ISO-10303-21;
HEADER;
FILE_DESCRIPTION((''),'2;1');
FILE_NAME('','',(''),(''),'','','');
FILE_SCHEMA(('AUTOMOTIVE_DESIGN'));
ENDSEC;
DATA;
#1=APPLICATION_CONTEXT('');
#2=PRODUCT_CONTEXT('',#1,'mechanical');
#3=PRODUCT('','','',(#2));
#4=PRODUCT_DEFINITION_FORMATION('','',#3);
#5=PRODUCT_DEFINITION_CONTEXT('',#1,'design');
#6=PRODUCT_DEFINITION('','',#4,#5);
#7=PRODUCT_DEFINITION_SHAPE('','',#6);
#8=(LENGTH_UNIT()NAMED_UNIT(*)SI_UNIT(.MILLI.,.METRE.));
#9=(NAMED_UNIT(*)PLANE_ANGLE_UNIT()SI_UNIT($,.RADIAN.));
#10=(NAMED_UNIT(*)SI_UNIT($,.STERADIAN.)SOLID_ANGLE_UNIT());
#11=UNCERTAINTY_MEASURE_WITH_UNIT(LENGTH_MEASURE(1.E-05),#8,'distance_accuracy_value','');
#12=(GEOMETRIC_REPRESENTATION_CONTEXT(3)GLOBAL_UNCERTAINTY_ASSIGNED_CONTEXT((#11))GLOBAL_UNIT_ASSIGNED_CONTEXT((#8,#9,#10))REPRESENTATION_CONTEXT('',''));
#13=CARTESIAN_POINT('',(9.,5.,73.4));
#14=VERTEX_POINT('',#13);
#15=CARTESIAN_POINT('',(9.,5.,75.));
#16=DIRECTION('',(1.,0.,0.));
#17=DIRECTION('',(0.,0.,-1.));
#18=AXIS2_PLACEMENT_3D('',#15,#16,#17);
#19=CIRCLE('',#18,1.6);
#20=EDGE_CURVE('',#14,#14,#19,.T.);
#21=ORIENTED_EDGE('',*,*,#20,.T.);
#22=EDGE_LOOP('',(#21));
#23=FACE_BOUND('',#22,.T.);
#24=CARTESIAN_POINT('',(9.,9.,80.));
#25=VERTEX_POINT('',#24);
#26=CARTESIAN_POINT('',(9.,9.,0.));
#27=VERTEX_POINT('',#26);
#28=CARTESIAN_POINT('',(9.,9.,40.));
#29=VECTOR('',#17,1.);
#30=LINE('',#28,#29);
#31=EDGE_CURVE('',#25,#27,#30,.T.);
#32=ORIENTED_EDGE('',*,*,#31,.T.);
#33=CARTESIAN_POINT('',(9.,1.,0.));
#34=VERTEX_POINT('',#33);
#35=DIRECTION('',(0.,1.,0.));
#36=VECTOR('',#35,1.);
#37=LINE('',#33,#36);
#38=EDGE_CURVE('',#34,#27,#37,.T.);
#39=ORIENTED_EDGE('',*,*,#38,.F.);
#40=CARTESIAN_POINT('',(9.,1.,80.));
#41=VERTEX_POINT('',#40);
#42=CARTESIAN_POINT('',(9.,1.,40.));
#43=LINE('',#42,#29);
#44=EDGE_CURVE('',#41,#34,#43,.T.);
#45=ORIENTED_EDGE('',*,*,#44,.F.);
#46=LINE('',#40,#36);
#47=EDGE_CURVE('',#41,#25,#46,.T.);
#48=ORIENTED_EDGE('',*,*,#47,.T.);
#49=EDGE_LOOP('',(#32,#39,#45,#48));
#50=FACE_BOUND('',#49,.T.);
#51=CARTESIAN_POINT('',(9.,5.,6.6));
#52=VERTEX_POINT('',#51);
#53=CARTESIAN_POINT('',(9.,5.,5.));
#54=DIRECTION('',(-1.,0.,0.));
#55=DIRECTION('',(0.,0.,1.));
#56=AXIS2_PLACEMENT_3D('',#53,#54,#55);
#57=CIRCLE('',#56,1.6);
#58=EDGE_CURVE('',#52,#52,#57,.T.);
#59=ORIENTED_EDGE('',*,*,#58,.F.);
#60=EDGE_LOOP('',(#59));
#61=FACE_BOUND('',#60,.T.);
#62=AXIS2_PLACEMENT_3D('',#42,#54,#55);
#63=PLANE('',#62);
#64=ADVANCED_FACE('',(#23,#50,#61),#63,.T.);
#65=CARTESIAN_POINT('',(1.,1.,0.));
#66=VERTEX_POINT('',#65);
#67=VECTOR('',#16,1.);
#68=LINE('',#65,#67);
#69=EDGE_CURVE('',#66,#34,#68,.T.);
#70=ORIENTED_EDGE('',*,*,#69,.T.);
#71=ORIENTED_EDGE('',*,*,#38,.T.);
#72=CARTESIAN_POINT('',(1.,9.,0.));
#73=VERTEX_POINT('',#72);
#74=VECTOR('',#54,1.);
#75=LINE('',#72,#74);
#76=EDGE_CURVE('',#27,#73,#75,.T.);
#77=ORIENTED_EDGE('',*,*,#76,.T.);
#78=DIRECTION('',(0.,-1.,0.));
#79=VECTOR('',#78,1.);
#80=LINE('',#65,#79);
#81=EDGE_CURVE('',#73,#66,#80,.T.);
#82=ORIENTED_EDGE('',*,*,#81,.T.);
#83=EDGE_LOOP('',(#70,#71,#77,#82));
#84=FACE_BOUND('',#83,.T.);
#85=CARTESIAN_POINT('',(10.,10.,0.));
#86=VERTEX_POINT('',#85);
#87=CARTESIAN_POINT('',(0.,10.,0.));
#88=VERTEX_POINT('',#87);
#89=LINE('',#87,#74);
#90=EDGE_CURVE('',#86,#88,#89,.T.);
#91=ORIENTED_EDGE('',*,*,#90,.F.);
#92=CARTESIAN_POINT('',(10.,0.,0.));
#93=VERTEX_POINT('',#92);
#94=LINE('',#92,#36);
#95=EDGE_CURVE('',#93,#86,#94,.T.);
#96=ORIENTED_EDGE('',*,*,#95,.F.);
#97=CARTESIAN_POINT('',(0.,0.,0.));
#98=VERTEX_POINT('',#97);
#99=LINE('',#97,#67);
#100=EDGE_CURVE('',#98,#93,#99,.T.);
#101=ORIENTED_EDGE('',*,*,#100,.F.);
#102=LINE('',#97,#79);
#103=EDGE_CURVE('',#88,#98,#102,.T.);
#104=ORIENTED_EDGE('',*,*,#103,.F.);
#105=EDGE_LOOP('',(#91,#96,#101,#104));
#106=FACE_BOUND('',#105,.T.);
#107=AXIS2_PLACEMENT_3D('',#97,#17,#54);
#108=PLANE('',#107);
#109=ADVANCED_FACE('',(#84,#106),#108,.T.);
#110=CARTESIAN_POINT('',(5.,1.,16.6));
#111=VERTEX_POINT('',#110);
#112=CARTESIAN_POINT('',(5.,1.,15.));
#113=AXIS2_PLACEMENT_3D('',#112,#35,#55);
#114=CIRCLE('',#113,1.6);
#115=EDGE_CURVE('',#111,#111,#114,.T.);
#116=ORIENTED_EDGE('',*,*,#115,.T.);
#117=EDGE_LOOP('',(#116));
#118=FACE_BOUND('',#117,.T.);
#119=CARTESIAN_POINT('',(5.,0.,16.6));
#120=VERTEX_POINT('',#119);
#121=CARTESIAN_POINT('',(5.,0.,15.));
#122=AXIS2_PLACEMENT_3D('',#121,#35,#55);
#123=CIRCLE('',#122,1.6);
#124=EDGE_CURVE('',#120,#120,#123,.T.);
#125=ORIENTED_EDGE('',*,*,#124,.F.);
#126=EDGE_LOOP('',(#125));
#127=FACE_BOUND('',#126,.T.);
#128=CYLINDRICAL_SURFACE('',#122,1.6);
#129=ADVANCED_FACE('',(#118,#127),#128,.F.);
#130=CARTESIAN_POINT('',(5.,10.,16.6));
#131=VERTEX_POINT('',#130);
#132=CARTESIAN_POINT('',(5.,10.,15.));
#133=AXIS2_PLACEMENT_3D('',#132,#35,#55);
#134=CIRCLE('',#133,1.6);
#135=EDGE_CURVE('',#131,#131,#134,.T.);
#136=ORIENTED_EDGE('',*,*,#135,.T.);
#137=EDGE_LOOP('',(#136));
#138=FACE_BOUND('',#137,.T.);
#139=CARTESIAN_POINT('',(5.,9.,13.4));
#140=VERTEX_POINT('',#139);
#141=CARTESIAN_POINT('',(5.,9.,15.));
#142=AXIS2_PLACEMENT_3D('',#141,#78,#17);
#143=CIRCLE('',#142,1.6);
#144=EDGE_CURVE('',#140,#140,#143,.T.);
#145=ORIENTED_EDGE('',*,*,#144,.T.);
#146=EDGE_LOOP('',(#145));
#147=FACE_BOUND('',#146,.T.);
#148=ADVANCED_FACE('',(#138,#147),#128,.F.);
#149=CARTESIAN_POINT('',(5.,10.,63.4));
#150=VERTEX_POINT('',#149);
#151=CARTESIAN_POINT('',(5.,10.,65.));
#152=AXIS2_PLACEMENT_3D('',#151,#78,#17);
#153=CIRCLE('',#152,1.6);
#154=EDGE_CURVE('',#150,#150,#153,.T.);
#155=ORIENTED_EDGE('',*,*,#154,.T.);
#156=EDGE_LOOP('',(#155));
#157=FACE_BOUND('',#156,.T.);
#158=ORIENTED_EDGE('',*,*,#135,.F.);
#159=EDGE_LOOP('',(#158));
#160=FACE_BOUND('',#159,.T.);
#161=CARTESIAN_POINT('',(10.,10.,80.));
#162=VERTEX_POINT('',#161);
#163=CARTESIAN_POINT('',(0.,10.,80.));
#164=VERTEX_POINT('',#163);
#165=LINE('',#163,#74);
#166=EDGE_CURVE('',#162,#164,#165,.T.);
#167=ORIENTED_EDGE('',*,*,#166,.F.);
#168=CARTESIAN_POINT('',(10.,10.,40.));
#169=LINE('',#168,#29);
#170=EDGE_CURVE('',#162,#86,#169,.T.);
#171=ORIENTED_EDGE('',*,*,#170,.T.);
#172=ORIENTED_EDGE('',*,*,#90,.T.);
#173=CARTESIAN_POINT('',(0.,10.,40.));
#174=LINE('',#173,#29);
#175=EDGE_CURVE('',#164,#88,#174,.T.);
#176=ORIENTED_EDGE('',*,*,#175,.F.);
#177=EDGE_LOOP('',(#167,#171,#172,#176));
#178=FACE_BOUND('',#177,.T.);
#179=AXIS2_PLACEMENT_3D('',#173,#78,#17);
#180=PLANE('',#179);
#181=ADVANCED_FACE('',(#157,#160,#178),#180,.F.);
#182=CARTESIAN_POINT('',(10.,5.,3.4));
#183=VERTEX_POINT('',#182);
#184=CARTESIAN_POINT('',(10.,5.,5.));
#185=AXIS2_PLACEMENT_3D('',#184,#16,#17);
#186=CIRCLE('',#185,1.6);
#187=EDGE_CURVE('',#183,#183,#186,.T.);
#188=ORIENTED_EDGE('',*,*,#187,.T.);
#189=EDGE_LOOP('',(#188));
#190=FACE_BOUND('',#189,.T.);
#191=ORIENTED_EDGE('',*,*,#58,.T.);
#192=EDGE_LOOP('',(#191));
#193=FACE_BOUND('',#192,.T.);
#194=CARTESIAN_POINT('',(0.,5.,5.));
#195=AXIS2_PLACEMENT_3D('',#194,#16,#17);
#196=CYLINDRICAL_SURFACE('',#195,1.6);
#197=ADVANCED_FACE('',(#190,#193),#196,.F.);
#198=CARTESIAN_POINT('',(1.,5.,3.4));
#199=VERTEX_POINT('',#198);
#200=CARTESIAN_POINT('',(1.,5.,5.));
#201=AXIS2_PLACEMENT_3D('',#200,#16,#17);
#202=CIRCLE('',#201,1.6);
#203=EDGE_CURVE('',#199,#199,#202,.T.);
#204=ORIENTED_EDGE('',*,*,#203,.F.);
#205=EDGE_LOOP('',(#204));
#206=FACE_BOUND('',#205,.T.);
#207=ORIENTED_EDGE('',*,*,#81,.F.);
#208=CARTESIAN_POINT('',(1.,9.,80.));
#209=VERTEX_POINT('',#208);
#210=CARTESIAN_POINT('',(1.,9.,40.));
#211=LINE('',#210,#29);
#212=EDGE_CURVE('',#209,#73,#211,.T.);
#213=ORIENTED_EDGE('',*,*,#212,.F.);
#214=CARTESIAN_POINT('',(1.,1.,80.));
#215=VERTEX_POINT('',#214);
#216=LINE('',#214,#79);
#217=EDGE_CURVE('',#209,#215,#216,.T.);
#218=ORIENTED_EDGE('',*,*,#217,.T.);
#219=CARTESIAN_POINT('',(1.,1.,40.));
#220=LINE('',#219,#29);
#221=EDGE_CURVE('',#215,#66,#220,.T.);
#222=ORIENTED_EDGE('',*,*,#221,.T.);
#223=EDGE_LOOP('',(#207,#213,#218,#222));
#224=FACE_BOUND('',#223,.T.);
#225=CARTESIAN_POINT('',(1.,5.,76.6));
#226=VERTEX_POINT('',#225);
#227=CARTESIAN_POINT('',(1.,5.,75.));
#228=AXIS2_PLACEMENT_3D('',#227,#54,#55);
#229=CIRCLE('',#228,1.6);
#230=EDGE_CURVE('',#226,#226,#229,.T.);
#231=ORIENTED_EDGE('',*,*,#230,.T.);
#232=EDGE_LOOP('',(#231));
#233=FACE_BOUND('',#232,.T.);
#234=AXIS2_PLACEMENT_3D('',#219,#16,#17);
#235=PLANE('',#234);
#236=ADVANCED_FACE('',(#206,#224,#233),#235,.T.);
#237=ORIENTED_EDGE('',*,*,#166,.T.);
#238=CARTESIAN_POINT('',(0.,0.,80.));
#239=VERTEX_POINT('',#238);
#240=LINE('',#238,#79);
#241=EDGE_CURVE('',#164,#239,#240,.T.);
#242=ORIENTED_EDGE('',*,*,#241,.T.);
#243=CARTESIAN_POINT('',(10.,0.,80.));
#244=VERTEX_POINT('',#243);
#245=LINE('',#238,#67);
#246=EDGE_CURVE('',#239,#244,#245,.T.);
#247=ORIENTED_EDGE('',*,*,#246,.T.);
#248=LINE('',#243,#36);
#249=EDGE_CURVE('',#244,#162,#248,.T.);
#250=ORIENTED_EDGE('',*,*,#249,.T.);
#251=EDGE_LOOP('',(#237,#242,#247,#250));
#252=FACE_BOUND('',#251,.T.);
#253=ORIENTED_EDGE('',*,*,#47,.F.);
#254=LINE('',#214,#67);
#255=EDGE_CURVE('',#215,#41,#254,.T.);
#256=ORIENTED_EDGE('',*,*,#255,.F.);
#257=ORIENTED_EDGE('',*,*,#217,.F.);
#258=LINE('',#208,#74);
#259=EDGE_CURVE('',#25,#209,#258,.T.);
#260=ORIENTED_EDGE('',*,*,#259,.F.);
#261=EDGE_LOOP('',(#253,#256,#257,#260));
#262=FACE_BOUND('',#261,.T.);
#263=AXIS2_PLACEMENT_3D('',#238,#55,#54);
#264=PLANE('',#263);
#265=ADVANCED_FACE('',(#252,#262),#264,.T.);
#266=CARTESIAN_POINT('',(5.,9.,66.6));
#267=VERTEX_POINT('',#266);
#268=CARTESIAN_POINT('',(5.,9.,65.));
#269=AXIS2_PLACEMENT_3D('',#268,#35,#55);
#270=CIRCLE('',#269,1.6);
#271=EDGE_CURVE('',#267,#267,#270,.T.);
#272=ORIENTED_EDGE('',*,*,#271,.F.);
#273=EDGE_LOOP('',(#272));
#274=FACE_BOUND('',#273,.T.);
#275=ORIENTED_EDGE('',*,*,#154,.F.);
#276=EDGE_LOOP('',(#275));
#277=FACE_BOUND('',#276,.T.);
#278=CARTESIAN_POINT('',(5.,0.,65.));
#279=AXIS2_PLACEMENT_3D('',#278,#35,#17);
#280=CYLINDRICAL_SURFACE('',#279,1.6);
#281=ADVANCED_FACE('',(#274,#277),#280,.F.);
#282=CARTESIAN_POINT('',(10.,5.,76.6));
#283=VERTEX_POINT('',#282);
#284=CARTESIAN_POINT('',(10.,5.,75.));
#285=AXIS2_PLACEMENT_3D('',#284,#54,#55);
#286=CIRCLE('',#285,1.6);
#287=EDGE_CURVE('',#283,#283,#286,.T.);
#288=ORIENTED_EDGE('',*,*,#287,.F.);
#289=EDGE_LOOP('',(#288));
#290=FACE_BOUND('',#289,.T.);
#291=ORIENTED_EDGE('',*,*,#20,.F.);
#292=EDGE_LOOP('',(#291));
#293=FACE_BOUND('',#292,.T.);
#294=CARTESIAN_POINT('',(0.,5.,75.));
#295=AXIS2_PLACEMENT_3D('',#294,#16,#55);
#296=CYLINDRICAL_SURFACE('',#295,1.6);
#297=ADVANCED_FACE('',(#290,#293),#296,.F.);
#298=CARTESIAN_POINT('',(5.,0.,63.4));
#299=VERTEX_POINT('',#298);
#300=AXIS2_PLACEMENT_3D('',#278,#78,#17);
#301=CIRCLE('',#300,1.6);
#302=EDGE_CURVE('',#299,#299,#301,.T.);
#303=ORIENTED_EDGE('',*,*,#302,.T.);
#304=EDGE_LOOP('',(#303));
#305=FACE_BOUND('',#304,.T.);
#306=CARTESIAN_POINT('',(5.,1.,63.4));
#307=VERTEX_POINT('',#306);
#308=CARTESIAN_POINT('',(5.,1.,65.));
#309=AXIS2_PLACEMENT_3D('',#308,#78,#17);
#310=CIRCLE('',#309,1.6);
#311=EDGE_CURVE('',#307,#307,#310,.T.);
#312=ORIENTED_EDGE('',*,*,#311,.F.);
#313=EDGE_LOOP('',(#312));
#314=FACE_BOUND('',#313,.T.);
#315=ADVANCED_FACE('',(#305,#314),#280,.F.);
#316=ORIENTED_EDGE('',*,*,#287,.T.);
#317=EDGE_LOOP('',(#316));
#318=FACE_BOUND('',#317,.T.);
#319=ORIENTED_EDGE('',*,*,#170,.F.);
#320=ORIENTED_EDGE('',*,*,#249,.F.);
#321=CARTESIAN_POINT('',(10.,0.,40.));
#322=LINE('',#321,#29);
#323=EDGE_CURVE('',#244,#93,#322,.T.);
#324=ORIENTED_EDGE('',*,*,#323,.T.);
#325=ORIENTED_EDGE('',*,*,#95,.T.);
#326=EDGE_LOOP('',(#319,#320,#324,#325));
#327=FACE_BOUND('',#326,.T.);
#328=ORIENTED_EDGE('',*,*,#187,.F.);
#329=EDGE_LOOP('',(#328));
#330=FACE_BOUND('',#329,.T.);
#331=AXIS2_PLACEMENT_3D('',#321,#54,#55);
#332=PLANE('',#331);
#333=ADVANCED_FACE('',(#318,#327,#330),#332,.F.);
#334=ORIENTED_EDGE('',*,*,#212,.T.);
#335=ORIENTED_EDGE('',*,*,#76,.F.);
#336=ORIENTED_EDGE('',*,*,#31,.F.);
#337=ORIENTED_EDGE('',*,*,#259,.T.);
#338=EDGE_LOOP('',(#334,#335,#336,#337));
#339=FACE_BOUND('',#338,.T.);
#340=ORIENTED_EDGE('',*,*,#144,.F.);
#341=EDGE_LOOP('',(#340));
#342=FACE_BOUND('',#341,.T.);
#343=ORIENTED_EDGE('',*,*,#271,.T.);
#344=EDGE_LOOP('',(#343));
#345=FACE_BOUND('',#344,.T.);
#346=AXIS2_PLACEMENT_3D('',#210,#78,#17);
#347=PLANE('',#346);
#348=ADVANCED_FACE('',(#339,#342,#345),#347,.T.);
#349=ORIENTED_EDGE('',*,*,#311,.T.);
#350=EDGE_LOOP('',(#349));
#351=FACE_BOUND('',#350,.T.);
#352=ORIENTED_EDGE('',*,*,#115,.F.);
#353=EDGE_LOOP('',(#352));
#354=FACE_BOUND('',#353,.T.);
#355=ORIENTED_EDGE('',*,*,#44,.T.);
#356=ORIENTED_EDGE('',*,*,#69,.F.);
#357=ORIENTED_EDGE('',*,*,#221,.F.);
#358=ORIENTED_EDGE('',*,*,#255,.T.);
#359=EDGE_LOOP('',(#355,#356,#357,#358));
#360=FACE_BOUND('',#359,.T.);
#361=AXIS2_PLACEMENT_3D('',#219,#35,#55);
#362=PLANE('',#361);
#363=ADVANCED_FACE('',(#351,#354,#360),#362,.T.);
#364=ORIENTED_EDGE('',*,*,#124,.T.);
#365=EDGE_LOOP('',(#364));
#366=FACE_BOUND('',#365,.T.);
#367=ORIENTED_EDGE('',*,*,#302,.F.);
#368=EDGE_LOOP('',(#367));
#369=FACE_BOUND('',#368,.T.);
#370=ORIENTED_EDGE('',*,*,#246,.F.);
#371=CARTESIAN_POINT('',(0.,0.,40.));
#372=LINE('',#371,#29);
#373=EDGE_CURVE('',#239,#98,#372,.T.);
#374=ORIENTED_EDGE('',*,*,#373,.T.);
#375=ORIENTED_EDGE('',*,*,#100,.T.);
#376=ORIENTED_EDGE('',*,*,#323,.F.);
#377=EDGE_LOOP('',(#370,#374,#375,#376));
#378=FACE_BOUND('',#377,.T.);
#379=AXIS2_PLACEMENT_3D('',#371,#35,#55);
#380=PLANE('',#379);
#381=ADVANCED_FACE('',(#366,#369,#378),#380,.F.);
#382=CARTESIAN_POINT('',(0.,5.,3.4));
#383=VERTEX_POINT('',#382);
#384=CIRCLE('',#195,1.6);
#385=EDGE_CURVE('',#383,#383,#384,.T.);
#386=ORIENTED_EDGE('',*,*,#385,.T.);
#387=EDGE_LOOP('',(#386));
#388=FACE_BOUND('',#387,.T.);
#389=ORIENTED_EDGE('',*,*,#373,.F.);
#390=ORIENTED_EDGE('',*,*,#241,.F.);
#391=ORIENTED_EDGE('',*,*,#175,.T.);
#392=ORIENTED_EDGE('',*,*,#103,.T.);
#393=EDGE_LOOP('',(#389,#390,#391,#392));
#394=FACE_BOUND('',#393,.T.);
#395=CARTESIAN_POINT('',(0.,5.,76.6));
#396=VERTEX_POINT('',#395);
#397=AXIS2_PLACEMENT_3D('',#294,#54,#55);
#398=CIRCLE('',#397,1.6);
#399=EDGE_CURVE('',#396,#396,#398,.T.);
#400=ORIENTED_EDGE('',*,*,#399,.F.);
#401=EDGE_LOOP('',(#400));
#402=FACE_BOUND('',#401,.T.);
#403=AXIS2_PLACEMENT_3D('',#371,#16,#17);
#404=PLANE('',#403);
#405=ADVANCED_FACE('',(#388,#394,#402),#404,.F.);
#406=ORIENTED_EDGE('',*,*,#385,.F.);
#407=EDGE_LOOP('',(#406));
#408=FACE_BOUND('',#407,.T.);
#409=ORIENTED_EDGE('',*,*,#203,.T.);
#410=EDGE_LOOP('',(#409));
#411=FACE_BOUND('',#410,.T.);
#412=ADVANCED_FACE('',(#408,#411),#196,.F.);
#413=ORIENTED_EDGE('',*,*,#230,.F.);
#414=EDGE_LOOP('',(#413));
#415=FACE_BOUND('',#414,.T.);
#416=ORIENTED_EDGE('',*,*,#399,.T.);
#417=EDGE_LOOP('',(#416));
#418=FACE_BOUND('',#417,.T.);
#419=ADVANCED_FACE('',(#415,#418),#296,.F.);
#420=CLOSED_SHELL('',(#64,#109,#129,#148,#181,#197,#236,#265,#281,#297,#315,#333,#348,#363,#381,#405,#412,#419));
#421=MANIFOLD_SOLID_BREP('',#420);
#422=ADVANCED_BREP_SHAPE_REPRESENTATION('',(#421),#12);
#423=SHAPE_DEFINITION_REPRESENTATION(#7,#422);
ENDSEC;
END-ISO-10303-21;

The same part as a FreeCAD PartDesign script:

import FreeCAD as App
import Part
import Sketcher
from FreeCAD import Vector
Q = App.Units.Quantity


def add_polygon(sketch, points):
    """Adds a closed chain of lines whose ends are joined by coincident constraints."""
    first, n = sketch.GeometryCount, len(points)
    for a, b in zip(points, points[1:] + points[:1]):
        sketch.addGeometry(Part.LineSegment(App.Vector(*a, 0), App.Vector(*b, 0)), False)
    for i in range(n):
        sketch.addConstraint(Sketcher.Constraint("Coincident", first + i, 2, first + (i + 1) % n, 1))

doc = App.newDocument("Part")
body = doc.addObject("PartDesign::Body", "Body")

# Sketch on XY plane
sketch1 = body.newObject("Sketcher::SketchObject", "Sketch")
sketch1.AttachmentSupport = (doc.getObject("XY_Plane"), [""])
sketch1.MapMode = "FlatFace"
add_polygon(sketch1, [(0, 10), (0, 0), (10, 0), (10, 10)])  # lines 0-3
add_polygon(sketch1, [(9, 1), (1, 1), (1, 9), (9, 9)])  # lines 4-7
sketch1.addConstraint([
    Sketcher.Constraint("Vertical", 0),
    Sketcher.Constraint("Horizontal", 1),
    Sketcher.Constraint("Vertical", 2),
    Sketcher.Constraint("Horizontal", 3),
    Sketcher.Constraint("Horizontal", 4),
    Sketcher.Constraint("Vertical", 5),
    Sketcher.Constraint("Horizontal", 6),
    Sketcher.Constraint("Vertical", 7),
    Sketcher.Constraint("Coincident", 0, 2, -1, 1),
    Sketcher.Constraint("Equal", 3, 0),
    Sketcher.Constraint("Equal", 6, 5),
    Sketcher.Constraint("DistanceX", 1, 1, 1, 2, Q("10 mm")),
    Sketcher.Constraint("DistanceX", 4, 2, 4, 1, Q("8 mm")),
    Sketcher.Constraint("DistanceX", -1, 1, 4, 2, Q("1 mm")),
    Sketcher.Constraint("DistanceY", -1, 1, 4, 2, Q("1 mm")),
])
pad1 = body.newObject("PartDesign::Pad", "Pad")
pad1.Profile = sketch1
pad1.Length = 40

# Sketch on YZ plane
sketch2 = body.newObject("Sketcher::SketchObject", "Sketch001")
sketch2.AttachmentSupport = (doc.getObject("YZ_Plane"), [""])
sketch2.MapMode = "FlatFace"
sketch2.AttachmentOffset = App.Placement(Vector(0, 0, 10), App.Rotation())
sketch2.addGeometry(Part.Circle(Vector(5, 5, 0), Vector(0, 0, 1), 1.6), False)
sketch2.addConstraint([
    Sketcher.Constraint("Diameter", 0, Q("3.2 mm")),
    Sketcher.Constraint("DistanceX", -1, 1, 0, 3, Q("5 mm")),
    Sketcher.Constraint("DistanceY", -1, 1, 0, 3, Q("5 mm")),
])
pocket1 = body.newObject("PartDesign::Pocket", "Pocket")
pocket1.Profile = sketch2
pocket1.Type = "ThroughAll"

# Sketch on XZ plane
sketch3 = body.newObject("Sketcher::SketchObject", "Sketch002")
sketch3.AttachmentSupport = (doc.getObject("XZ_Plane"), [""])
sketch3.MapMode = "FlatFace"
sketch3.AttachmentOffset = App.Placement(Vector(0, 0, -10), App.Rotation())
sketch3.addGeometry(Part.Circle(Vector(5, 15, 0), Vector(0, 0, 1), 1.6), False)
sketch3.addConstraint([
    Sketcher.Constraint("Diameter", 0, Q("3.2 mm")),
    Sketcher.Constraint("DistanceX", -1, 1, 0, 3, Q("5 mm")),
    Sketcher.Constraint("DistanceY", -1, 1, 0, 3, Q("15 mm")),
])
pocket2 = body.newObject("PartDesign::Pocket", "Pocket001")
pocket2.Profile = sketch3
pocket2.Type = "ThroughAll"
pocket2.Reversed = True
body2 = doc.addObject("PartDesign::Body", "Body001")
doc.recompute()

body2.BaseFeature = body
doc.recompute()

mirroring = doc.addObject("Part::Mirroring", "Mirroring")
mirroring.Source = body
mirroring.Base = Vector(0, 0, 40)
mirroring.Normal = Vector(0, 0, -1)
body3 = doc.addObject("PartDesign::Body", "Body002")
body3.BaseFeature = mirroring
boolean = body2.newObject("PartDesign::Boolean", "Boolean")
boolean.Type = "Fuse"
boolean.addObjects([body3])
doc.recompute()
mirroring.Visibility = False

doc.recompute()
